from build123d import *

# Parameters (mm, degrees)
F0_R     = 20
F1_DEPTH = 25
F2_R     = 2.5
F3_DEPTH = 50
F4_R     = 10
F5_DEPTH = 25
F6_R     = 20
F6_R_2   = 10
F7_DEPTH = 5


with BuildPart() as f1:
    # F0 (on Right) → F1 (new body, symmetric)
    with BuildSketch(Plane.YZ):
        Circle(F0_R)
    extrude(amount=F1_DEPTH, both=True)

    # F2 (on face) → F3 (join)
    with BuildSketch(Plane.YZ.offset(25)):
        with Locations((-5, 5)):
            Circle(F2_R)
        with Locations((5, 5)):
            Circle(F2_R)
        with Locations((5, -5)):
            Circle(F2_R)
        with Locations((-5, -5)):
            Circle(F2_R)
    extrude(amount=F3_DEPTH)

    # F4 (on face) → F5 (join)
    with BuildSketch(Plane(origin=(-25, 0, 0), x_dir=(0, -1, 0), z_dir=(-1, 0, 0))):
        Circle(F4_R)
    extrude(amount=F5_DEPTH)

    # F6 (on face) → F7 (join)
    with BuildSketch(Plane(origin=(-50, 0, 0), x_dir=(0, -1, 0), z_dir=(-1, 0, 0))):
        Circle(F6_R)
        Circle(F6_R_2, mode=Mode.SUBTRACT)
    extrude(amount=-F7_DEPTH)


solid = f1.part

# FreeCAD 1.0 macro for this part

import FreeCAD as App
import Part
import Sketcher
from FreeCAD import Vector
Q = App.Units.Quantity

doc = App.newDocument("Part")
body = doc.addObject("PartDesign::Body", "Body")

# Sketch on YZ plane
sketch1 = doc.addObject("Sketcher::SketchObject", "Sketch")
body.addObject(sketch1)
sketch1.AttachmentSupport = (doc.YZ_Plane, [""])
sketch1.MapMode = "FlatFace"
sketch1.addGeometry(Part.Circle(Vector(0, 0, 0), Vector(0, 0, 1), 20), False)
sketch1.addConstraint([
    Sketcher.Constraint("Coincident", 0, 3, -1, 1),
    Sketcher.Constraint("Diameter", 0, Q("40 mm")),
])
pad1 = doc.addObject("PartDesign::Pad", "Pad")
body.addObject(pad1)
pad1.Profile = sketch1
pad1.Length = 50
pad1.Midplane = True

# Sketch on YZ plane
sketch2 = doc.addObject("Sketcher::SketchObject", "Sketch001")
body.addObject(sketch2)
sketch2.AttachmentSupport = (doc.YZ_Plane, [""])
sketch2.MapMode = "FlatFace"
sketch2.AttachmentOffset = App.Placement(Vector(0, 0, 25), App.Rotation())
sketch2.addGeometry([
    Part.Circle(Vector(-5, 5, 0), Vector(0, 0, 1), 2.5),
    Part.Circle(Vector(5, 5, 0), Vector(0, 0, 1), 2.5),
    Part.Circle(Vector(5, -5, 0), Vector(0, 0, 1), 2.5),
    Part.Circle(Vector(-5, -5, 0), Vector(0, 0, 1), 2.5),
], False)
sketch2.addConstraint([
    Sketcher.Constraint("Equal", 0, 1),
    Sketcher.Constraint("Equal", 1, 2),
    Sketcher.Constraint("Equal", 2, 3),
    Sketcher.Constraint("Symmetric", 0, 3, 2, 3, -1, 1),
    Sketcher.Constraint("Symmetric", 1, 3, 3, 3, -1, 1),
    Sketcher.Constraint("Symmetric", 0, 3, 1, 3, -2),
    Sketcher.Constraint("Diameter", 0, Q("5 mm")),
    Sketcher.Constraint("DistanceX", 0, 3, -1, 1, Q("5 mm")),
    Sketcher.Constraint("DistanceY", -1, 1, 0, 3, Q("5 mm")),
])
pad2 = doc.addObject("PartDesign::Pad", "Pad001")
body.addObject(pad2)
pad2.Profile = sketch2
pad2.Length = 50

# Sketch on YZ plane
sketch3 = doc.addObject("Sketcher::SketchObject", "Sketch002")
body.addObject(sketch3)
sketch3.AttachmentSupport = (doc.YZ_Plane, [""])
sketch3.MapMode = "FlatFace"
sketch3.AttachmentOffset = App.Placement(Vector(0, 0, -25), App.Rotation())
sketch3.addGeometry(Part.Circle(Vector(0, 0, 0), Vector(0, 0, 1), 10), False)
sketch3.addConstraint([
    Sketcher.Constraint("Coincident", 0, 3, -1, 1),
    Sketcher.Constraint("Diameter", 0, Q("20 mm")),
])
pad3 = doc.addObject("PartDesign::Pad", "Pad002")
body.addObject(pad3)
pad3.Profile = sketch3
pad3.Length = 25
pad3.Reversed = True

# Sketch on YZ plane
sketch4 = doc.addObject("Sketcher::SketchObject", "Sketch003")
body.addObject(sketch4)
sketch4.AttachmentSupport = (doc.YZ_Plane, [""])
sketch4.MapMode = "FlatFace"
sketch4.AttachmentOffset = App.Placement(Vector(0, 0, -50), App.Rotation())
sketch4.addGeometry([
    Part.Circle(Vector(0, 0, 0), Vector(0, 0, 1), 20),
    Part.Circle(Vector(0, 0, 0), Vector(0, 0, 1), 10),
], False)
sketch4.addConstraint([
    Sketcher.Constraint("Coincident", 0, 3, -1, 1),
    Sketcher.Constraint("Coincident", 1, 3, -1, 1),
    Sketcher.Constraint("Diameter", 0, Q("40 mm")),
    Sketcher.Constraint("Diameter", 1, Q("20 mm")),
])
pad4 = doc.addObject("PartDesign::Pad", "Pad003")
body.addObject(pad4)
pad4.Profile = sketch4
pad4.Length = 5

doc.recompute()
